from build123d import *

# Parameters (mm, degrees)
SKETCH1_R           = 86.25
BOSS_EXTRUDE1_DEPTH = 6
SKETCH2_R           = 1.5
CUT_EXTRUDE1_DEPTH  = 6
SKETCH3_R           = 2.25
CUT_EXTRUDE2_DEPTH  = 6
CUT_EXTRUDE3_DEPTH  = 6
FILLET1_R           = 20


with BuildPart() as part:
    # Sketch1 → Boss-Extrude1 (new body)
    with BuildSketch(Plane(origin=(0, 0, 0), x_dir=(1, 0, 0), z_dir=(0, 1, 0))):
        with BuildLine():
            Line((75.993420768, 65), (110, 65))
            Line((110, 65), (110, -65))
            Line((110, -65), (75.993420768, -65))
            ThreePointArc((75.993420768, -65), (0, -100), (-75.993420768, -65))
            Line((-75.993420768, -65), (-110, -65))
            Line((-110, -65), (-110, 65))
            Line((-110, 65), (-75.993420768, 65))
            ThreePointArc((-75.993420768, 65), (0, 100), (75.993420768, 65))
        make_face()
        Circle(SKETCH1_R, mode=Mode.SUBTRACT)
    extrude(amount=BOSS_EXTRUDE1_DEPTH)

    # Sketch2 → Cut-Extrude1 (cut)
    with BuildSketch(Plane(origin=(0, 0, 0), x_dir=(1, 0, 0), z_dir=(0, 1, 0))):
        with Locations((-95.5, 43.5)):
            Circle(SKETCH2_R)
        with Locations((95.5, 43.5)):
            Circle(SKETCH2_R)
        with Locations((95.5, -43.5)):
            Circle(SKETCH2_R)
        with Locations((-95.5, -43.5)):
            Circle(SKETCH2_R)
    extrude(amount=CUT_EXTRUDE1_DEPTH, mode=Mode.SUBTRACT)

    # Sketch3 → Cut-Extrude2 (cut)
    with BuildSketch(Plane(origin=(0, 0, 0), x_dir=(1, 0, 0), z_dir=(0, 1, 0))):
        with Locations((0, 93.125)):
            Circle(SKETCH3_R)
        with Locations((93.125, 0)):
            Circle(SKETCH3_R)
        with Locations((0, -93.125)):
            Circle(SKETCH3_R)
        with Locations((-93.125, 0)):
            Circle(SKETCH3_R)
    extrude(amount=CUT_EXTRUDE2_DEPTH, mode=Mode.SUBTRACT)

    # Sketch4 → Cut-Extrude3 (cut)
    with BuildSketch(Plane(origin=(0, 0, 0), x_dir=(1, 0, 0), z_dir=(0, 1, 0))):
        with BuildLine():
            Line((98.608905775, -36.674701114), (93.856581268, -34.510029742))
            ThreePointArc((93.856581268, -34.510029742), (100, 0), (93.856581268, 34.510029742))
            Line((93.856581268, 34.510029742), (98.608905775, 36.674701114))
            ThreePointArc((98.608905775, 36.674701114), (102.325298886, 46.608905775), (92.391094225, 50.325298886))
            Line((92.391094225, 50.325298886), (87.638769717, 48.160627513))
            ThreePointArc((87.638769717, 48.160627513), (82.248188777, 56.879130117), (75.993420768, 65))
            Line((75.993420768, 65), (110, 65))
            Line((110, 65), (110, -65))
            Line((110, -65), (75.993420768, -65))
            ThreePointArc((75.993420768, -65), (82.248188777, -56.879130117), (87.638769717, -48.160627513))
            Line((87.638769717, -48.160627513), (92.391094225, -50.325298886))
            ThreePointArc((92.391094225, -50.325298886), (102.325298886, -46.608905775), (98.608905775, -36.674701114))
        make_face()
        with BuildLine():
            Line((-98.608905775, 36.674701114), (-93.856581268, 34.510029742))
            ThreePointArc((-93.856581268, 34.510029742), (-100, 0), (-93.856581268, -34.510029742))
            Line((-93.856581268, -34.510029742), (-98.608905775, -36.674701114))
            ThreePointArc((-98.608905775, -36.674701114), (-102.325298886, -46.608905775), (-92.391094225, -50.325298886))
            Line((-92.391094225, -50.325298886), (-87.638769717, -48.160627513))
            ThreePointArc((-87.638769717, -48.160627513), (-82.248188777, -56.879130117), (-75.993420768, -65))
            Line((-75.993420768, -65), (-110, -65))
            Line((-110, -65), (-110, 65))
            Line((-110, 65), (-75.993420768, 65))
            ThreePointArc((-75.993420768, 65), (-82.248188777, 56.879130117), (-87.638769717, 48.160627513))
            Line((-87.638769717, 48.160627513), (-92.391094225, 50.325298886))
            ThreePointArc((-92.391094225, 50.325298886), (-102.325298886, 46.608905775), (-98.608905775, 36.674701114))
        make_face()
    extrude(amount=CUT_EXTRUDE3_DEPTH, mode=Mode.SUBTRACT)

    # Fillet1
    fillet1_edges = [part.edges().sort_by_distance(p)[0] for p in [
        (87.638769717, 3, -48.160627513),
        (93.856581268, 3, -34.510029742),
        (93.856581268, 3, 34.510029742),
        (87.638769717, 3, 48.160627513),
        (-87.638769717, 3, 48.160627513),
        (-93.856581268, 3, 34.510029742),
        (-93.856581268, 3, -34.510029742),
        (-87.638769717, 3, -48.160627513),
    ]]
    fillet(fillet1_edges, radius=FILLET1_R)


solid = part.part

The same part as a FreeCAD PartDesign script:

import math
import FreeCAD as App
import Part
import Sketcher

V = App.Vector


def edges_at(feature, points):
    """Names of the edges that pass closest to the given points."""
    edges = feature.Shape.Edges
    near = lambda p: min(range(len(edges)), key=lambda i: edges[i].distToShape(Part.Vertex(*p))[0])
    return sorted({f"Edge{near(p) + 1}" for p in points})

doc = App.newDocument("Part")
body = doc.addObject("PartDesign::Body", "Body")

# Sketch on XZ plane
sketch1 = body.newObject("Sketcher::SketchObject", "Sketch")
sketch1.AttachmentSupport = (doc.getObject("XZ_Plane"), [""])
sketch1.MapMode = "FlatFace"
sketch1.addGeometry([
    Part.LineSegment(V(110, -65, 0), V(75.993421, -65, 0)),  # 0
    Part.ArcOfCircle(Part.Circle(V(0, 0, 0), V(0, 0, 1), 100), math.radians(-139.458398), math.radians(-40.541602)),  # 1
    Part.LineSegment(V(-75.993421, -65, 0), V(-110, -65, 0)),  # 2
    Part.LineSegment(V(-110, -65, 0), V(-110, 65, 0)),  # 3
    Part.LineSegment(V(-110, 65, 0), V(-75.993421, 65, 0)),  # 4
    Part.ArcOfCircle(Part.Circle(V(0, 0, 0), V(0, 0, 1), 100), math.radians(40.541602), math.radians(139.458398)),  # 5
    Part.LineSegment(V(75.993421, 65, 0), V(110, 65, 0)),  # 6
    Part.LineSegment(V(110, 65, 0), V(110, -65, 0)),  # 7
    Part.Circle(V(0, 0, 0), V(0, 0, 1), 86.25),  # 8
], False)
sketch1.addConstraint([
    Sketcher.Constraint("Coincident", 0, 2, 1, 2),
    Sketcher.Constraint("Coincident", 1, 1, 2, 1),
    Sketcher.Constraint("Coincident", 2, 2, 3, 1),
    Sketcher.Constraint("Coincident", 3, 2, 4, 1),
    Sketcher.Constraint("Coincident", 4, 2, 5, 2),
    Sketcher.Constraint("Coincident", 5, 1, 6, 1),
    Sketcher.Constraint("Coincident", 6, 2, 7, 1),
    Sketcher.Constraint("Coincident", 7, 2, 0, 1),
    Sketcher.Constraint("Horizontal", 0),
    Sketcher.Constraint("Horizontal", 2),
    Sketcher.Constraint("Vertical", 3),
    Sketcher.Constraint("Horizontal", 4),
    Sketcher.Constraint("Horizontal", 6),
    Sketcher.Constraint("Vertical", 7),
    Sketcher.Constraint("Coincident", 1, 3, -1, 1),
    Sketcher.Constraint("Coincident", 5, 3, -1, 1),
    Sketcher.Constraint("Coincident", 8, 3, -1, 1),
    Sketcher.Constraint("Equal", 1, 5),
    Sketcher.Constraint("Symmetric", 2, 2, 6, 2, -1, 1),
    Sketcher.Constraint("Horizontal", 0, 2, 1, 1),
    Sketcher.Constraint("Horizontal", 4, 2, 5, 1),
    Sketcher.Constraint("Radius", 1, 100.0),
    Sketcher.Constraint("Diameter", 8, 172.5),
    Sketcher.Constraint("DistanceY", 3, 1, 3, 2, 130.0),
    Sketcher.Constraint("DistanceX", 2, 2, -1, 1, 110.0),
])
pad1 = body.newObject("PartDesign::Pad", "Pad")
pad1.Profile = sketch1
pad1.Length = 6
pad1.Reversed = True

# Sketch on XZ plane
sketch2 = body.newObject("Sketcher::SketchObject", "Sketch001")
sketch2.AttachmentSupport = (doc.getObject("XZ_Plane"), [""])
sketch2.MapMode = "FlatFace"
sketch2.addGeometry([
    Part.Circle(V(-95.5, -43.5, 0), V(0, 0, 1), 1.5),
    Part.Circle(V(95.5, -43.5, 0), V(0, 0, 1), 1.5),
    Part.Circle(V(95.5, 43.5, 0), V(0, 0, 1), 1.5),
    Part.Circle(V(-95.5, 43.5, 0), V(0, 0, 1), 1.5),
], False)
sketch2.addConstraint([
    Sketcher.Constraint("Equal", 0, 1),
    Sketcher.Constraint("Equal", 1, 2),
    Sketcher.Constraint("Equal", 2, 3),
    Sketcher.Constraint("Symmetric", 0, 3, 2, 3, -1, 1),
    Sketcher.Constraint("Symmetric", 1, 3, 3, 3, -1, 1),
    Sketcher.Constraint("Symmetric", 0, 3, 1, 3, -2),
    Sketcher.Constraint("Diameter", 0, 3.0),
    Sketcher.Constraint("DistanceX", 0, 3, 1, 3, 191.0),
    Sketcher.Constraint("DistanceY", 1, 3, 2, 3, 87.0),
])
pocket1 = body.newObject("PartDesign::Pocket", "Pocket")
pocket1.Profile = sketch2
pocket1.Length = 6

# Sketch on XZ plane
sketch3 = body.newObject("Sketcher::SketchObject", "Sketch002")
sketch3.AttachmentSupport = (doc.getObject("XZ_Plane"), [""])
sketch3.MapMode = "FlatFace"
sketch3.addGeometry([
    Part.Circle(V(0, -93.125, 0), V(0, 0, 1), 2.25),
    Part.Circle(V(93.125, 0, 0), V(0, 0, 1), 2.25),
    Part.Circle(V(0, 93.125, 0), V(0, 0, 1), 2.25),
    Part.Circle(V(-93.125, 0, 0), V(0, 0, 1), 2.25),
], False)
sketch3.addConstraint([
    Sketcher.Constraint("Equal", 0, 1),
    Sketcher.Constraint("Equal", 1, 2),
    Sketcher.Constraint("Equal", 2, 3),
    Sketcher.Constraint("Symmetric", 0, 3, 2, 3, -1, 1),
    Sketcher.Constraint("Symmetric", 1, 3, 3, 3, -1, 1),
    Sketcher.Constraint("PointOnObject", 0, 3, -2),
    Sketcher.Constraint("PointOnObject", 1, 3, -1),
    Sketcher.Constraint("Diameter", 0, 4.5),
    Sketcher.Constraint("DistanceY", 0, 3, 2, 3, 186.25),
    Sketcher.Constraint("DistanceX", 3, 3, 1, 3, 186.25),
])
pocket2 = body.newObject("PartDesign::Pocket", "Pocket001")
pocket2.Profile = sketch3
pocket2.Length = 6

# Sketch on XZ plane
sketch4 = body.newObject("Sketcher::SketchObject", "Sketch003")
sketch4.AttachmentSupport = (doc.getObject("XZ_Plane"), [""])
sketch4.MapMode = "FlatFace"
sketch4.addGeometry([
    Part.LineSegment(V(93.856581, 34.51003, 0), V(98.608906, 36.674701, 0)),  # 0
    Part.ArcOfCircle(Part.Circle(V(95.5, 43.5, 0), V(0, 0, 1), 7.5), math.radians(-65.510859), math.radians(114.489141)),  # 1
    Part.LineSegment(V(92.391094, 50.325299, 0), V(87.63877, 48.160628, 0)),  # 2
    Part.ArcOfCircle(Part.Circle(V(0, 0, 0), V(0, 0, 1), 100), math.radians(28.790363), math.radians(40.541602)),  # 3
    Part.LineSegment(V(75.993421, 65, 0), V(110, 65, 0)),  # 4
    Part.LineSegment(V(110, 65, 0), V(110, -65, 0)),  # 5
    Part.LineSegment(V(110, -65, 0), V(75.993421, -65, 0)),  # 6
    Part.ArcOfCircle(Part.Circle(V(0, 0, 0), V(0, 0, 1), 100), math.radians(-40.541602), math.radians(-28.790363)),  # 7
    Part.LineSegment(V(87.63877, -48.160628, 0), V(92.391094, -50.325299, 0)),  # 8
    Part.ArcOfCircle(Part.Circle(V(95.5, -43.5, 0), V(0, 0, 1), 7.5), math.radians(-114.489141), math.radians(65.510859)),  # 9
    Part.LineSegment(V(98.608906, -36.674701, 0), V(93.856581, -34.51003, 0)),  # 10
    Part.ArcOfCircle(Part.Circle(V(0, 0, 0), V(0, 0, 1), 100), math.radians(-20.187918), math.radians(20.187918)),  # 11
    Part.LineSegment(V(-93.856581, -34.51003, 0), V(-98.608906, -36.674701, 0)),  # 12
    Part.ArcOfCircle(Part.Circle(V(-95.5, -43.5, 0), V(0, 0, 1), 7.5), math.radians(114.489141), math.radians(294.489141)),  # 13
    Part.LineSegment(V(-92.391094, -50.325299, 0), V(-87.63877, -48.160628, 0)),  # 14
    Part.ArcOfCircle(Part.Circle(V(0, 0, 0), V(0, 0, 1), 100), math.radians(-151.209637), math.radians(-139.458398)),  # 15
    Part.LineSegment(V(-75.993421, -65, 0), V(-110, -65, 0)),  # 16
    Part.LineSegment(V(-110, -65, 0), V(-110, 65, 0)),  # 17
    Part.LineSegment(V(-110, 65, 0), V(-75.993421, 65, 0)),  # 18
    Part.ArcOfCircle(Part.Circle(V(0, 0, 0), V(0, 0, 1), 100), math.radians(139.458398), math.radians(151.209637)),  # 19
    Part.LineSegment(V(-87.63877, 48.160628, 0), V(-92.391094, 50.325299, 0)),  # 20
    Part.ArcOfCircle(Part.Circle(V(-95.5, 43.5, 0), V(0, 0, 1), 7.5), math.radians(65.510859), math.radians(245.510859)),  # 21
    Part.LineSegment(V(-98.608906, 36.674701, 0), V(-93.856581, 34.51003, 0)),  # 22
    Part.ArcOfCircle(Part.Circle(V(0, 0, 0), V(0, 0, 1), 100), math.radians(159.812082), math.radians(200.187918)),  # 23
], False)
sketch4.addConstraint([
    Sketcher.Constraint("Tangent", 0, 2, 1, 1),
    Sketcher.Constraint("Tangent", 1, 2, 2, 1),
    Sketcher.Constraint("Coincident", 2, 2, 3, 1),
    Sketcher.Constraint("Coincident", 3, 2, 4, 1),
    Sketcher.Constraint("Coincident", 4, 2, 5, 1),
    Sketcher.Constraint("Coincident", 5, 2, 6, 1),
    Sketcher.Constraint("Coincident", 6, 2, 7, 1),
    Sketcher.Constraint("Coincident", 7, 2, 8, 1),
    Sketcher.Constraint("Tangent", 8, 2, 9, 1),
    Sketcher.Constraint("Tangent", 9, 2, 10, 1),
    Sketcher.Constraint("Coincident", 10, 2, 11, 1),
    Sketcher.Constraint("Coincident", 11, 2, 0, 1),
    Sketcher.Constraint("Tangent", 12, 2, 13, 1),
    Sketcher.Constraint("Tangent", 13, 2, 14, 1),
    Sketcher.Constraint("Coincident", 14, 2, 15, 1),
    Sketcher.Constraint("Coincident", 15, 2, 16, 1),
    Sketcher.Constraint("Coincident", 16, 2, 17, 1),
    Sketcher.Constraint("Coincident", 17, 2, 18, 1),
    Sketcher.Constraint("Coincident", 18, 2, 19, 1),
    Sketcher.Constraint("Coincident", 19, 2, 20, 1),
    Sketcher.Constraint("Tangent", 20, 2, 21, 1),
    Sketcher.Constraint("Tangent", 21, 2, 22, 1),
    Sketcher.Constraint("Coincident", 22, 2, 23, 1),
    Sketcher.Constraint("Coincident", 23, 2, 12, 1),
    Sketcher.Constraint("Horizontal", 4),
    Sketcher.Constraint("Vertical", 5),
    Sketcher.Constraint("Horizontal", 6),
    Sketcher.Constraint("Horizontal", 16),
    Sketcher.Constraint("Vertical", 17),
    Sketcher.Constraint("Horizontal", 18),
    Sketcher.Constraint("Coincident", 3, 3, -1, 1),
    Sketcher.Constraint("Coincident", 7, 3, -1, 1),
    Sketcher.Constraint("Coincident", 11, 3, -1, 1),
    Sketcher.Constraint("Coincident", 15, 3, -1, 1),
    Sketcher.Constraint("Coincident", 19, 3, -1, 1),
    Sketcher.Constraint("Coincident", 23, 3, -1, 1),
    Sketcher.Constraint("Equal", 3, 7),
    Sketcher.Constraint("Equal", 1, 9),
    Sketcher.Constraint("Equal", 7, 11),
    Sketcher.Constraint("Equal", 9, 13),
    Sketcher.Constraint("Equal", 11, 15),
    Sketcher.Constraint("Equal", 15, 19),
    Sketcher.Constraint("Equal", 13, 21),
    Sketcher.Constraint("Equal", 19, 23),
    Sketcher.Constraint("Symmetric", 1, 3, 13, 3, -1, 1),
    Sketcher.Constraint("Symmetric", 9, 3, 21, 3, -1, 1),
    Sketcher.Constraint("Symmetric", 4, 2, 16, 2, -1, 1),
    Sketcher.Constraint("Symmetric", 9, 3, 13, 3, -2),
    Sketcher.Constraint("Parallel", 0, 2),
    Sketcher.Constraint("Parallel", 8, 10),
    Sketcher.Constraint("Parallel", 2, 12),
    Sketcher.Constraint("Parallel", 12, 14),
    Sketcher.Constraint("Parallel", 10, 20),
    Sketcher.Constraint("Parallel", 20, 22),
    Sketcher.Constraint("Horizontal", 9, 2, 12, 2),
    Sketcher.Constraint("Horizontal", 6, 2, 15, 2),
    Sketcher.Constraint("Horizontal", 4, 2, 17, 2),
    Sketcher.Constraint("Equal", 0, 2),
    Sketcher.Constraint("Radius", 3, 100.0),
    Sketcher.Constraint("Radius", 1, 7.5),
    Sketcher.Constraint("DistanceY", 5, 2, 5, 1, 130.0),
    Sketcher.Constraint("DistanceX", -1, 1, 4, 2, 110.0),
    Sketcher.Constraint("DistanceY", 9, 3, 1, 3, 87.0),
    Sketcher.Constraint("DistanceX", 13, 3, 9, 3, 191.0),
])
pocket3 = body.newObject("PartDesign::Pocket", "Pocket002")
pocket3.Profile = sketch4
pocket3.Length = 6
doc.recompute()

fillet = body.newObject("PartDesign::Fillet", "Fillet")
fillet.Base = (pocket3, edges_at(pocket3, [
    (87.639, 3, -48.161),
    (93.857, 3, -34.51),
    (93.857, 3, 34.51),
    (87.639, 3, 48.161),
    (-87.639, 3, 48.161),
    (-93.857, 3, 34.51),
    (-93.857, 3, -34.51),
    (-87.639, 3, -48.161),
]))
fillet.Radius = 20

doc.recompute()
